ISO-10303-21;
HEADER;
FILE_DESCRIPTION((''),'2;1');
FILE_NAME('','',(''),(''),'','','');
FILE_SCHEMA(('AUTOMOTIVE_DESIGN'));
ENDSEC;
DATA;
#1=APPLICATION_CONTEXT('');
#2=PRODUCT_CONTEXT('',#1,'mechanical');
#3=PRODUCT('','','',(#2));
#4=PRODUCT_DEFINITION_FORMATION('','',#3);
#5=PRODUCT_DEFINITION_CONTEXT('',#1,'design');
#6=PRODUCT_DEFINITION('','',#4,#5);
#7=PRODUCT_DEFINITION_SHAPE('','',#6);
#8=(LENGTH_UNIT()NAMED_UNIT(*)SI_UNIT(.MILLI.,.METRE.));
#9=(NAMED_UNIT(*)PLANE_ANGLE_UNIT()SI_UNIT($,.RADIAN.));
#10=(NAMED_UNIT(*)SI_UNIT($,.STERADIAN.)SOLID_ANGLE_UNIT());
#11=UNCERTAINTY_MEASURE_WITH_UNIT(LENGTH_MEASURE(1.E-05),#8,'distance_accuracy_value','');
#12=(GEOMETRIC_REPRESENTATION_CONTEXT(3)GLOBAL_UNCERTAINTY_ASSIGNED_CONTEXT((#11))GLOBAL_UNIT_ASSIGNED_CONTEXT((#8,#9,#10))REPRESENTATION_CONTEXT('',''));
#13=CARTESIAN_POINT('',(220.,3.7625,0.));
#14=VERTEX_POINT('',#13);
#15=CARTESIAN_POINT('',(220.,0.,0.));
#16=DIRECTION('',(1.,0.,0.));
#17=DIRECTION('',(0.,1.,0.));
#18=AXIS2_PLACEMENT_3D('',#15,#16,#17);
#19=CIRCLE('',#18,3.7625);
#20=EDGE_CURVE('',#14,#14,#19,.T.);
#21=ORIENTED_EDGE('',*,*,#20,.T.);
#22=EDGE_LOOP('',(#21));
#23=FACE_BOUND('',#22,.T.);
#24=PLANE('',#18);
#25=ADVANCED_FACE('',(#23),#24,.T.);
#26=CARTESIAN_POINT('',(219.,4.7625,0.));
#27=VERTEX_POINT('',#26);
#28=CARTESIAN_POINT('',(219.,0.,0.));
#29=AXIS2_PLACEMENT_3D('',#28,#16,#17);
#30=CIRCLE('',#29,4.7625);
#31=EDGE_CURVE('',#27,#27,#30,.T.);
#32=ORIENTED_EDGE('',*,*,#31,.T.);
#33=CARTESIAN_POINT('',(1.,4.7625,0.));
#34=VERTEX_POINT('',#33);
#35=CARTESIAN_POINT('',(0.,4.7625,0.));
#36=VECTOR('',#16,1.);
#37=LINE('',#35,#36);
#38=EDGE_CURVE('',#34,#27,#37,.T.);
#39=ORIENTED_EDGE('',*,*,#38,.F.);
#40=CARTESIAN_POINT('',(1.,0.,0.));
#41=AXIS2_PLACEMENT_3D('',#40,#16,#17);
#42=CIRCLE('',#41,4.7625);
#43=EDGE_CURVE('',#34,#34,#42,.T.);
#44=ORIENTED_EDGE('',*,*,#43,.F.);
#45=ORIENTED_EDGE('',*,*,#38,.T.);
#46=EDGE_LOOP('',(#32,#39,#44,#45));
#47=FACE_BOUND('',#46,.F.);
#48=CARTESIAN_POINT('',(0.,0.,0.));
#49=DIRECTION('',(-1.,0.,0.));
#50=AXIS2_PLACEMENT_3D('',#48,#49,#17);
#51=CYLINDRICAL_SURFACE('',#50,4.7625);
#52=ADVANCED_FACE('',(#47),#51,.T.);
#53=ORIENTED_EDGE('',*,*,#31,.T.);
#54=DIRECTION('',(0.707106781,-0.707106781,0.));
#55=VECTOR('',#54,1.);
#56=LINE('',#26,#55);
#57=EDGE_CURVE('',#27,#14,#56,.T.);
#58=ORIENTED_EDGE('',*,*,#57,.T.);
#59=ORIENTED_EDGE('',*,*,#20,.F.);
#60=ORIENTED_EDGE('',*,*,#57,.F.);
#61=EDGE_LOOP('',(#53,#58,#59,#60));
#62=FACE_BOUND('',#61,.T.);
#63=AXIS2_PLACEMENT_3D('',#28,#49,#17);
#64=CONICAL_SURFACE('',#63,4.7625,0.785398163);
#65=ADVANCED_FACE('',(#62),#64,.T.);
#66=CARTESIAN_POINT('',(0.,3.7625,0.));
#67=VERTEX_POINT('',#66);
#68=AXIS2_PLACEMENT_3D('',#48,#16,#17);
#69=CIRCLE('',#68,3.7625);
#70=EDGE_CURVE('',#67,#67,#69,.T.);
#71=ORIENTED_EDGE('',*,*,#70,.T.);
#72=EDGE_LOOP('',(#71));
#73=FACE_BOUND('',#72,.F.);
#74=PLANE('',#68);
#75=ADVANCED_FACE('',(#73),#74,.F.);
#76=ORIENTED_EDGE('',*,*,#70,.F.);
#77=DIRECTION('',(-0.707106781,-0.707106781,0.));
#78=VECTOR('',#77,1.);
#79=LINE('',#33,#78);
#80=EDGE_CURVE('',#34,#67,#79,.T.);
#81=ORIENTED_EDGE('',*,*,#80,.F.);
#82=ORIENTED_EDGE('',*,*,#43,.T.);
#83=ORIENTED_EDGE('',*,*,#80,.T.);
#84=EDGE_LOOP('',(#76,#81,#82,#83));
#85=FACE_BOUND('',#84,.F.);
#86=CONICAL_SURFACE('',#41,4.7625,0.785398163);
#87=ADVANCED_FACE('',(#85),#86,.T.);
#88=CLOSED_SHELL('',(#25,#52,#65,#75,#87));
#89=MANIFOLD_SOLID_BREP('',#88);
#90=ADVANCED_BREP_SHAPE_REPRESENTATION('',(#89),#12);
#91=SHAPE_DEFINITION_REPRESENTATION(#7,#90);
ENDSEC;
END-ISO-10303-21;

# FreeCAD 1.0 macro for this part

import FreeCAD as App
import Part
import Sketcher
Q = App.Units.Quantity


def edges_at(feature, points):
    """Names of the edges that pass closest to the given points."""
    edges = feature.Shape.Edges
    near = lambda p: min(range(len(edges)), key=lambda i: edges[i].distToShape(Part.Vertex(*p))[0])
    return sorted({f"Edge{near(p) + 1}" for p in points})

doc = App.newDocument("Part")
params = doc.addObject("Spreadsheet::Sheet", "Params")
for row, (alias, value) in enumerate([
    ("pad1_length", "220 mm"),
    ("chamfer_size", "1 mm"),
], start=1):
    params.set(f"A{row}", alias)
    params.set(f"B{row}", "=" + value)
    params.setAlias(f"B{row}", alias)

body = doc.addObject("PartDesign::Body", "Body")

sketch1 = body.newObject("Sketcher::SketchObject", "Sketch")
sketch1.AttachmentSupport = (doc.getObject("YZ_Plane"), [""])
sketch1.MapMode = "FlatFace"
sketch1.addGeometry(Part.Circle(App.Vector(0, 0, 0), App.Vector(0, 0, 1), 4.8), False)
sketch1.addConstraint([
    Sketcher.Constraint("Coincident", 0, 3, -1, 1),
    Sketcher.Constraint("Diameter", 0, Q("9.525 mm")),
])
pad1 = body.newObject("PartDesign::Pad", "Pad")
pad1.Profile = sketch1
pad1.setExpression("Length", "Params.pad1_length")
doc.recompute()

chamfer = body.newObject("PartDesign::Chamfer", "Chamfer")
chamfer.Base = (pad1, edges_at(pad1, [(220, -4.763, 0), (0, -4.763, 0)]))
chamfer.setExpression("Size", "Params.chamfer_size")

doc.recompute()
